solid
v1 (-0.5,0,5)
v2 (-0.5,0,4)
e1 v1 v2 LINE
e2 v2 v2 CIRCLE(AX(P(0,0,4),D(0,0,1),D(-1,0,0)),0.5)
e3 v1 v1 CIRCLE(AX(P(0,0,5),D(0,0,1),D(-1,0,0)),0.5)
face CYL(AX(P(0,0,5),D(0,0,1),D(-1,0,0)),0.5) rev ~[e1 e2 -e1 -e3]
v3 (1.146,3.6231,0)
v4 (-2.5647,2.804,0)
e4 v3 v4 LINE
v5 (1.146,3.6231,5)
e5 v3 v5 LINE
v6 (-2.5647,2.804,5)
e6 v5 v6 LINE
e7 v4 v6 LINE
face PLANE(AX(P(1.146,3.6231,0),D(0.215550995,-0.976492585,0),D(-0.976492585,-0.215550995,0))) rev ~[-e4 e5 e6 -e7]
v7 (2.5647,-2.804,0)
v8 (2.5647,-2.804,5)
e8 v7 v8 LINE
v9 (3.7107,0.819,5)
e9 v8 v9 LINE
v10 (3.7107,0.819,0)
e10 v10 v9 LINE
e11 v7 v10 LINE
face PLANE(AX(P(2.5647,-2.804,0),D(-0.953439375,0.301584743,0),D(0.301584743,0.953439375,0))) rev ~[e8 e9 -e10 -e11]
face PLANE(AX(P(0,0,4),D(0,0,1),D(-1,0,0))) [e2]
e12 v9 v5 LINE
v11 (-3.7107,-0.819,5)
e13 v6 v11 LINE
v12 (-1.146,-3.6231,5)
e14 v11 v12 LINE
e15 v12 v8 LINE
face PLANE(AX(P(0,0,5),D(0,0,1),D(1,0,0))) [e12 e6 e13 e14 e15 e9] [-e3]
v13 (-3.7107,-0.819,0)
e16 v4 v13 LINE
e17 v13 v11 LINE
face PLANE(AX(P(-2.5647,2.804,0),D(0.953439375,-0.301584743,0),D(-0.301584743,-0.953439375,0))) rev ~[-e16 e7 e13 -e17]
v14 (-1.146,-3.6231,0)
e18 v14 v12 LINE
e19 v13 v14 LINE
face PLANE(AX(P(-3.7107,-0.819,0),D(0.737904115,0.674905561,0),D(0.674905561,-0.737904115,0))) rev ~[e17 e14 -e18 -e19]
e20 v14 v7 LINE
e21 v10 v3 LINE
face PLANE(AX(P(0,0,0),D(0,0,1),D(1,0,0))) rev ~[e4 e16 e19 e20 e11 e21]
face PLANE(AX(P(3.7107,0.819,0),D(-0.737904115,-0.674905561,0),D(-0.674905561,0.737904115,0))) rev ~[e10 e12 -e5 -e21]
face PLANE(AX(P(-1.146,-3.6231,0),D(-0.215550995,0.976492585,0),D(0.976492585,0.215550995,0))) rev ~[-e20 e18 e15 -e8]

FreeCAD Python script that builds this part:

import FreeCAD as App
import Part
import Sketcher

V = App.Vector
Q = App.Units.Quantity

doc = App.newDocument("Part")
body = doc.addObject("PartDesign::Body", "Body")

# Sketch on XY plane
sketch1 = doc.addObject("Sketcher::SketchObject", "Sketch")
body.addObject(sketch1)
sketch1.AttachmentSupport = (doc.XY_Plane, [""])
sketch1.MapMode = "FlatFace"
sketch1.addGeometry([
    Part.LineSegment(V(-1.146, -3.6231, 0), V(2.5647, -2.804, 0)),  # 0
    Part.LineSegment(V(2.5647, -2.804, 0), V(3.7107, 0.819, 0)),  # 1
    Part.LineSegment(V(3.7107, 0.819, 0), V(1.146, 3.6231, 0)),  # 2
    Part.LineSegment(V(1.146, 3.6231, 0), V(-2.5647, 2.804, 0)),  # 3
    Part.LineSegment(V(-2.5647, 2.804, 0), V(-3.7107, -0.819, 0)),  # 4
    Part.LineSegment(V(-3.7107, -0.819, 0), V(-1.146, -3.6231, 0)),  # 5
], False)
sketch1.addConstraint([
    Sketcher.Constraint("Coincident", 0, 2, 1, 1),
    Sketcher.Constraint("Coincident", 1, 2, 2, 1),
    Sketcher.Constraint("Coincident", 2, 2, 3, 1),
    Sketcher.Constraint("Coincident", 3, 2, 4, 1),
    Sketcher.Constraint("Coincident", 4, 2, 5, 1),
    Sketcher.Constraint("Coincident", 5, 2, 0, 1),
    Sketcher.Constraint("Symmetric", 0, 2, 3, 2, -1, 1),
    Sketcher.Constraint("Symmetric", 1, 2, 4, 2, -1, 1),
    Sketcher.Constraint("Symmetric", 2, 2, 5, 2, -1, 1),
    Sketcher.Constraint("Equal", 0, 1),
    Sketcher.Constraint("Equal", 1, 2),
    Sketcher.Constraint("Distance", 0, Q("3.8 mm")),
    Sketcher.Constraint("DistanceY", 0, 2, -1, 1, Q("2.804 mm")),
    Sketcher.Constraint("DistanceY", -1, 1, 1, 2, Q("0.819 mm")),
    Sketcher.Constraint("DistanceX", -1, 1, 2, 2, Q("1.146 mm")),
])
pad1 = doc.addObject("PartDesign::Pad", "Pad")
body.addObject(pad1)
pad1.Profile = sketch1
pad1.Length = 5

# Sketch on XY plane
sketch2 = doc.addObject("Sketcher::SketchObject", "Sketch001")
body.addObject(sketch2)
sketch2.AttachmentSupport = (doc.XY_Plane, [""])
sketch2.MapMode = "FlatFace"
sketch2.AttachmentOffset = App.Placement(V(0, 0, 5), App.Rotation())
sketch2.addGeometry(Part.Circle(V(0, 0, 0), V(0, 0, 1), 0.5), False)
sketch2.addConstraint([
    Sketcher.Constraint("Coincident", 0, 3, -1, 1),
    Sketcher.Constraint("Diameter", 0, Q("1 mm")),
])
pocket1 = doc.addObject("PartDesign::Pocket", "Pocket")
body.addObject(pocket1)
pocket1.Profile = sketch2
pocket1.Length = 1

doc.recompute()
